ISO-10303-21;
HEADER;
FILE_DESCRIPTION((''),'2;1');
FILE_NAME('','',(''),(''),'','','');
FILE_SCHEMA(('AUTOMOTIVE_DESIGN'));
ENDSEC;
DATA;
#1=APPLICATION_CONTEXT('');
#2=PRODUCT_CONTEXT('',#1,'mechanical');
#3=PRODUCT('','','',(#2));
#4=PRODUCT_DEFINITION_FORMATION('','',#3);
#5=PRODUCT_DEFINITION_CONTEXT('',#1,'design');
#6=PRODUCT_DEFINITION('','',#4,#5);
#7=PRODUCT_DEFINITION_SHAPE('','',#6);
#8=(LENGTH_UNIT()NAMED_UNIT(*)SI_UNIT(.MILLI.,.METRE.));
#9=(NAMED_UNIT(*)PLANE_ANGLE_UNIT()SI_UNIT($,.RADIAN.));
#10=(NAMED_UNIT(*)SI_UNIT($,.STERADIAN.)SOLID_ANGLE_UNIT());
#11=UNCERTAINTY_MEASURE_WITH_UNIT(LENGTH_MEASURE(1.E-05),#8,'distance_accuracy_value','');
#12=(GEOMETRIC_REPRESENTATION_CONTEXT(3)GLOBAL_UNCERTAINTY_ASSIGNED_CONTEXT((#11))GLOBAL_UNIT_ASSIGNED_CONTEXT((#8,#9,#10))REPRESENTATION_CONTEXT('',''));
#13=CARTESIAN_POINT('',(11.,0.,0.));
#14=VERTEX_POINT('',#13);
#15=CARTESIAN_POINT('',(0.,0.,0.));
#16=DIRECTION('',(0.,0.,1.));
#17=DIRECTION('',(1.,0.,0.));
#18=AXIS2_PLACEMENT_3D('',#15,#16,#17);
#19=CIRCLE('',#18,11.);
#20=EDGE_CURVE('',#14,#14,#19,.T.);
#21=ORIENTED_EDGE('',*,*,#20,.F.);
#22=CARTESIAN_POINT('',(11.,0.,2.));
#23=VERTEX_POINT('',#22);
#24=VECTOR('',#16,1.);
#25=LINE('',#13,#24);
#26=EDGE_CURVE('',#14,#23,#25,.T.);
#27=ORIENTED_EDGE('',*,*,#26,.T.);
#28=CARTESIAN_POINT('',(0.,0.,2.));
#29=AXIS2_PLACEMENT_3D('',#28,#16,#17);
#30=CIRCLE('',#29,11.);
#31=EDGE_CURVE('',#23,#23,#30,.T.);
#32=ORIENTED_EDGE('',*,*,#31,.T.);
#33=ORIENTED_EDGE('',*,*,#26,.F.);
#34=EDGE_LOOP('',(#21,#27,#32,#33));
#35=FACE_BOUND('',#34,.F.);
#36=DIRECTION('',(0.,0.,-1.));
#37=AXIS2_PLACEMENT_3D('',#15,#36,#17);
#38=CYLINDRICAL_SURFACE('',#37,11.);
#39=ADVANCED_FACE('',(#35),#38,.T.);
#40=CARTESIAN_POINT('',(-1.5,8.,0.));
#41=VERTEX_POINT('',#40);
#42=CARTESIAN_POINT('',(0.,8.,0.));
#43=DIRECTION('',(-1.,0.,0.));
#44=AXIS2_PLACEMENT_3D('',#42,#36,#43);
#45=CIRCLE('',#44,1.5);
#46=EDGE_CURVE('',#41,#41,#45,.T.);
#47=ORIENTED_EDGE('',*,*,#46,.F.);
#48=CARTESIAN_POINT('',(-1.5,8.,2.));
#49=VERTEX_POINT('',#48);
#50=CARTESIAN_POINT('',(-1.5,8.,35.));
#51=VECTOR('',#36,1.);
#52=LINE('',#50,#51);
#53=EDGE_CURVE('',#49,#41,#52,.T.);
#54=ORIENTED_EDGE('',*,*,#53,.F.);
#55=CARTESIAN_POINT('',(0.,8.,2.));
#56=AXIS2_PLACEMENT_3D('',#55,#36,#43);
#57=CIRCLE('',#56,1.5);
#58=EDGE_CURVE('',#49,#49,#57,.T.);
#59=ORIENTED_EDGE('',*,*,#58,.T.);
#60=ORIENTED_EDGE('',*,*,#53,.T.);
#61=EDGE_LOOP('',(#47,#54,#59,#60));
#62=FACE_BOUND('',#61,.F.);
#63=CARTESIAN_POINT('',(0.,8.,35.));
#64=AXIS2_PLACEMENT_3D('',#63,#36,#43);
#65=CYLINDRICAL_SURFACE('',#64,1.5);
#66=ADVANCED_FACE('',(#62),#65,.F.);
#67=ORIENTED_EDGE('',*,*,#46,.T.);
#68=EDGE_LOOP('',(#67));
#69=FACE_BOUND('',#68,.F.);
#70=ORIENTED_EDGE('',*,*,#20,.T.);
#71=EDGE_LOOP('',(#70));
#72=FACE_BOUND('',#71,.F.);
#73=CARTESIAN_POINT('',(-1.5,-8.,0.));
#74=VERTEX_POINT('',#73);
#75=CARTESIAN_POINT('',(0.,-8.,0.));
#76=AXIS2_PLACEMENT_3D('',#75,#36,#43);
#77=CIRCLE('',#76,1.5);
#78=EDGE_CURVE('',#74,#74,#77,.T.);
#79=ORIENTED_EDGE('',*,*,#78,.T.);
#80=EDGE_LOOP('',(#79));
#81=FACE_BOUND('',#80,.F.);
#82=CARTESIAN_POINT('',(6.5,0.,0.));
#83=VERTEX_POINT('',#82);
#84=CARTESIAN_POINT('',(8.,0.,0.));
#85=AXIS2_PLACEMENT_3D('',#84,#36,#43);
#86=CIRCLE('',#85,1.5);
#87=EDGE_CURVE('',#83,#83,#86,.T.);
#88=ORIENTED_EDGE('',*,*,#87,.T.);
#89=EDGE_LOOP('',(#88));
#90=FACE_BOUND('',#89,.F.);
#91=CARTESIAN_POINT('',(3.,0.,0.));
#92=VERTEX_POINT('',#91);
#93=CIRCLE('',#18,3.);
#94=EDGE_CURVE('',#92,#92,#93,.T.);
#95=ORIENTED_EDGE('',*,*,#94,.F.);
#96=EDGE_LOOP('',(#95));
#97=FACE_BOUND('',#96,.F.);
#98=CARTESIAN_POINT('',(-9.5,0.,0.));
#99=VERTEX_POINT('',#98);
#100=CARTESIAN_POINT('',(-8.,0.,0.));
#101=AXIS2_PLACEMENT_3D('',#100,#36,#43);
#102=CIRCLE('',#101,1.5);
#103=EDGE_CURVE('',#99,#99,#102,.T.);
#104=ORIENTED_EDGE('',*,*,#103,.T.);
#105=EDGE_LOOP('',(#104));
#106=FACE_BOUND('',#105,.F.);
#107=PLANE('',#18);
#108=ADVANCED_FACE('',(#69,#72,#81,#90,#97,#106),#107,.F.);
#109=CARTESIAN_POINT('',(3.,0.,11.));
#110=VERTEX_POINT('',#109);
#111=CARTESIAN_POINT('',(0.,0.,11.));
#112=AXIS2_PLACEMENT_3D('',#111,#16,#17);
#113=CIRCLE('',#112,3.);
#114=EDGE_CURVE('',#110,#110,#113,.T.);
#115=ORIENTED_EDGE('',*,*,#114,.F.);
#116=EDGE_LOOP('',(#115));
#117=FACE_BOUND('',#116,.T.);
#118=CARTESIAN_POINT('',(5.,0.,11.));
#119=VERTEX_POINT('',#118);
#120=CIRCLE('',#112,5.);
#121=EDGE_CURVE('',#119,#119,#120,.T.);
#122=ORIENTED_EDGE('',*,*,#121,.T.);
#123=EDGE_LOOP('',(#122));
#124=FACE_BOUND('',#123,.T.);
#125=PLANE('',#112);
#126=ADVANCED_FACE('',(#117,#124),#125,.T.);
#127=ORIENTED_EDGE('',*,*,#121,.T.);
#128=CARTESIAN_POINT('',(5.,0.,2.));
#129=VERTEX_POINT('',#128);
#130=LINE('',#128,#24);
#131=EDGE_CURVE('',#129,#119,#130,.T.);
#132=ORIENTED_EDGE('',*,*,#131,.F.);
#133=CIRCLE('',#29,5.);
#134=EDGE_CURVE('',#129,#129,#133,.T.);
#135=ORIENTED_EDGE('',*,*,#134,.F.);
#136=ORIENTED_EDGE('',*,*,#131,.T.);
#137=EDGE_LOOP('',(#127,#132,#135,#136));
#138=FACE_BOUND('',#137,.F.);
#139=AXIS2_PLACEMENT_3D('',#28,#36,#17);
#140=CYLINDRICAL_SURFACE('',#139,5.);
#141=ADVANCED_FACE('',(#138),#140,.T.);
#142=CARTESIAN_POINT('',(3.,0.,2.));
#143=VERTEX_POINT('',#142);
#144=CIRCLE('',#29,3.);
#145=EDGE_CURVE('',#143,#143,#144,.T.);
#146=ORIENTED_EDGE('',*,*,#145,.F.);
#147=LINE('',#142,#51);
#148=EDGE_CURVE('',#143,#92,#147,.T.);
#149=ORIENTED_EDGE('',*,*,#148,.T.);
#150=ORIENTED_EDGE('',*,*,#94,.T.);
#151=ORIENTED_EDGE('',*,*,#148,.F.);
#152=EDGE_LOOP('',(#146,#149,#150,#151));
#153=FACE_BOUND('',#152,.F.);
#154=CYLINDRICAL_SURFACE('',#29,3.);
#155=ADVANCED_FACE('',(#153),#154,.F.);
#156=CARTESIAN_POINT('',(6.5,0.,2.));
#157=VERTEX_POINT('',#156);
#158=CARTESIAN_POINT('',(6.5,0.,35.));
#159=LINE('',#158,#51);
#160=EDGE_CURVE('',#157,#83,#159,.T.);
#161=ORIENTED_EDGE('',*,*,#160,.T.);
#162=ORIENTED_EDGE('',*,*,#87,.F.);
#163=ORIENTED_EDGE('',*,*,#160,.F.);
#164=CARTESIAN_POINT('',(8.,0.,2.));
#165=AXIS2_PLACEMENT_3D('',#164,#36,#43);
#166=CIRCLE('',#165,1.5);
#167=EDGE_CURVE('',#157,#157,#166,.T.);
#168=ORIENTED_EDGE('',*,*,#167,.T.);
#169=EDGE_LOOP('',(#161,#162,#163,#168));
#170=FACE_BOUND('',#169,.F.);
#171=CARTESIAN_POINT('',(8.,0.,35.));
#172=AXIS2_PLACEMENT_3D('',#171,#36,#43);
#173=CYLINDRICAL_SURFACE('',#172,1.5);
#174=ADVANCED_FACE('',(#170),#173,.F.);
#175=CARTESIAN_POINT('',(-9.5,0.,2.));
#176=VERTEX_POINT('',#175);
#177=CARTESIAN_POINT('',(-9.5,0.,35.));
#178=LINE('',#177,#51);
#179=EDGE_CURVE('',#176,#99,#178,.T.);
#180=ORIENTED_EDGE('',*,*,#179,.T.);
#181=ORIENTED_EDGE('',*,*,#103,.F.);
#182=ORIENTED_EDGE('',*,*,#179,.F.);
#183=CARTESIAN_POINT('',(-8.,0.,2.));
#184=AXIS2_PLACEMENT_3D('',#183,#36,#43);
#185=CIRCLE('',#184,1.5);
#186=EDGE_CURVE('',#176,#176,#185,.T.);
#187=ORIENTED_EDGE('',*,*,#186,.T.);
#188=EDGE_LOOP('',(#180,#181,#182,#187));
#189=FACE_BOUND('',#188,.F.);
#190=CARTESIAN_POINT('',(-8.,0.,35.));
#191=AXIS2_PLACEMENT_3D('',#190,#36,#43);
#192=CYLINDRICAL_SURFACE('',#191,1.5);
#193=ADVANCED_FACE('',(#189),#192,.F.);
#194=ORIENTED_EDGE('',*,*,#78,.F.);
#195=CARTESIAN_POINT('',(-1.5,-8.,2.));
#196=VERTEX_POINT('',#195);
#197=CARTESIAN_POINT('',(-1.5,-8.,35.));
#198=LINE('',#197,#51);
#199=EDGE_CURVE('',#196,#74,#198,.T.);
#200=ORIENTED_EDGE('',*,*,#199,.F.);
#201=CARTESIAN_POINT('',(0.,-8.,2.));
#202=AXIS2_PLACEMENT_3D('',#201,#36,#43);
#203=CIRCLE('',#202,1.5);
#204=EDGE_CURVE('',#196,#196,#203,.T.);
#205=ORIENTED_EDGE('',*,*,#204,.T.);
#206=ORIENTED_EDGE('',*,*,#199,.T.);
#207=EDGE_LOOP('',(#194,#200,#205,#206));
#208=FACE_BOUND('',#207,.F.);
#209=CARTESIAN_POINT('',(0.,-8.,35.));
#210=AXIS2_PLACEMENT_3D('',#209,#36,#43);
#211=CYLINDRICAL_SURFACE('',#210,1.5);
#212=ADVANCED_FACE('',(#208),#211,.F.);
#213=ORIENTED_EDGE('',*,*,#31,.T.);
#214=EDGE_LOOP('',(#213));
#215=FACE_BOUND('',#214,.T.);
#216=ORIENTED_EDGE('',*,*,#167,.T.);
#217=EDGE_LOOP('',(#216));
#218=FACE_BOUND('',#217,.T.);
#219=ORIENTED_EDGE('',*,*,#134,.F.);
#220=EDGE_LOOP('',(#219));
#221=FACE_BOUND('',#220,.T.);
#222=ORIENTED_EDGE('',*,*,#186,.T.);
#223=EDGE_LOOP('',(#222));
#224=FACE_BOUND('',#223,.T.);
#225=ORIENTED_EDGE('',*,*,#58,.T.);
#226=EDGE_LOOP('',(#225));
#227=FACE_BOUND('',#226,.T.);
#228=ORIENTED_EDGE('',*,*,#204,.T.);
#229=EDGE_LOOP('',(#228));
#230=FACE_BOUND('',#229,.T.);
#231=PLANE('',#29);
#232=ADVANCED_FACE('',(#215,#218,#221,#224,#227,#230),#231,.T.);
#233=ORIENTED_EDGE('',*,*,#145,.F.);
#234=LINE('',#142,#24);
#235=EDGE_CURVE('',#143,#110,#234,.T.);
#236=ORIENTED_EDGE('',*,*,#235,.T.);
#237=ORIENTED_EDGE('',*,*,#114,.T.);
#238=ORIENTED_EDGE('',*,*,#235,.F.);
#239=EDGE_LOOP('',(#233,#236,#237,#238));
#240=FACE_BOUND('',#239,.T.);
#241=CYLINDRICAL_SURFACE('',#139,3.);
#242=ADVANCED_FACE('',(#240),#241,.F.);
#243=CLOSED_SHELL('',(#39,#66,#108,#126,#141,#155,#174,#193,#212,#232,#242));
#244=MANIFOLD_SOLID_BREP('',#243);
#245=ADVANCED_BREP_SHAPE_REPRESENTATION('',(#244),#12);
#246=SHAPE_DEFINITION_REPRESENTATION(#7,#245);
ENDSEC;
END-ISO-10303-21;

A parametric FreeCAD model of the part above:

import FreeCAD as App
import Part
import Sketcher
from FreeCAD import Vector
Q = App.Units.Quantity

doc = App.newDocument("Part")
params = doc.addObject("Spreadsheet::Sheet", "Params")
for row, (alias, value) in enumerate([
    ("sketch1_diameter", "22 mm"),
    ("pad1_length", "2 mm"),
    ("sketch2_diameter", "10 mm"),
    ("sketch2_diameter2", "6 mm"),
    ("pad2_length", "9 mm"),
    ("sketch3_diameter", "6 mm"),
    ("sketch4_diameter", "3 mm"),
    ("hole_diameter", "3 mm"),
], start=1):
    params.set(f"A{row}", alias)
    params.set(f"B{row}", "=" + value)
    params.setAlias(f"B{row}", alias)

body = doc.addObject("PartDesign::Body", "Body")

# Sketch on XY plane
sketch1 = body.newObject("Sketcher::SketchObject", "Sketch")
sketch1.AttachmentSupport = (doc.getObject("XY_Plane"), [""])
sketch1.MapMode = "FlatFace"
sketch1.addGeometry(Part.Circle(Vector(0, 0, 0), Vector(0, 0, 1), 11), False)
sketch1.addConstraint(Sketcher.Constraint("Coincident", 0, 3, -1, 1))
sketch1.addConstraint(Sketcher.Constraint("Diameter", 0, Q("22 mm")))
sketch1.setExpression("Constraints[1]", "Params.sketch1_diameter")
pad1 = body.newObject("PartDesign::Pad", "Pad")
pad1.Profile = sketch1
pad1.setExpression("Length", "Params.pad1_length")

# Sketch on XY plane
sketch2 = body.newObject("Sketcher::SketchObject", "Sketch001")
sketch2.AttachmentSupport = (doc.getObject("XY_Plane"), [""])
sketch2.MapMode = "FlatFace"
sketch2.AttachmentOffset = App.Placement(Vector(0, 0, 2), App.Rotation())
sketch2.addGeometry(Part.Circle(Vector(0, 0, 0), Vector(0, 0, 1), 5), False)
sketch2.addGeometry(Part.Circle(Vector(0, 0, 0), Vector(0, 0, 1), 3), False)
sketch2.addConstraint(Sketcher.Constraint("Coincident", 0, 3, -1, 1))
sketch2.addConstraint(Sketcher.Constraint("Coincident", 1, 3, -1, 1))
sketch2.addConstraint(Sketcher.Constraint("Diameter", 0, Q("10 mm")))
sketch2.addConstraint(Sketcher.Constraint("Diameter", 1, Q("6 mm")))
sketch2.setExpression("Constraints[2]", "Params.sketch2_diameter")
sketch2.setExpression("Constraints[3]", "Params.sketch2_diameter2")
pad2 = body.newObject("PartDesign::Pad", "Pad001")
pad2.Profile = sketch2
pad2.setExpression("Length", "Params.pad2_length")

# Sketch on XY plane
sketch3 = body.newObject("Sketcher::SketchObject", "Sketch002")
sketch3.AttachmentSupport = (doc.getObject("XY_Plane"), [""])
sketch3.MapMode = "FlatFace"
sketch3.AttachmentOffset = App.Placement(Vector(0, 0, 2), App.Rotation())
sketch3.addGeometry(Part.Circle(Vector(0, 0, 0), Vector(0, 0, 1), 3), False)
sketch3.addConstraint(Sketcher.Constraint("Coincident", 0, 3, -1, 1))
sketch3.addConstraint(Sketcher.Constraint("Diameter", 0, Q("6 mm")))
sketch3.setExpression("Constraints[1]", "Params.sketch3_diameter")
pocket1 = body.newObject("PartDesign::Pocket", "Pocket")
pocket1.Profile = sketch3
pocket1.Type = "ThroughAll"

# Sketch on XY plane
sketch4 = body.newObject("Sketcher::SketchObject", "Sketch003")
sketch4.AttachmentSupport = (doc.getObject("XY_Plane"), [""])
sketch4.MapMode = "FlatFace"
sketch4.AttachmentOffset = App.Placement(Vector(0, 0, 2), App.Rotation())
sketch4.addGeometry(Part.Circle(Vector(0, 8, 0), Vector(0, 0, 1), 1.5), False)
sketch4.addGeometry(Part.Circle(Vector(8, 0, 0), Vector(0, 0, 1), 1.5), False)
sketch4.addGeometry(Part.Circle(Vector(0, -8, 0), Vector(0, 0, 1), 1.5), False)
sketch4.addGeometry(Part.Circle(Vector(-8, 0, 0), Vector(0, 0, 1), 1.5), False)
sketch4.addConstraint(Sketcher.Constraint("Equal", 0, 1))
sketch4.addConstraint(Sketcher.Constraint("Equal", 1, 2))
sketch4.addConstraint(Sketcher.Constraint("Equal", 2, 3))
sketch4.addConstraint(Sketcher.Constraint("Symmetric", 0, 3, 2, 3, -1, 1))
sketch4.addConstraint(Sketcher.Constraint("Symmetric", 1, 3, 3, 3, -1, 1))
sketch4.addConstraint(Sketcher.Constraint("PointOnObject", 0, 3, -2))
sketch4.addConstraint(Sketcher.Constraint("PointOnObject", 1, 3, -1))
sketch4.addConstraint(Sketcher.Constraint("Diameter", 0, Q("3 mm")))
sketch4.addConstraint(Sketcher.Constraint("DistanceY", -1, 1, 0, 3, Q("8 mm")))
sketch4.addConstraint(Sketcher.Constraint("DistanceX", -1, 1, 1, 3, Q("8 mm")))
sketch4.setExpression("Constraints[7]", "Params.sketch4_diameter")
doc.recompute()
hole = body.newObject("PartDesign::Hole", "Hole")
hole.Profile = sketch4
hole.ThreadType = "None"
hole.setExpression("Diameter", "Params.hole_diameter")
hole.DepthType = "ThroughAll"

doc.recompute()
